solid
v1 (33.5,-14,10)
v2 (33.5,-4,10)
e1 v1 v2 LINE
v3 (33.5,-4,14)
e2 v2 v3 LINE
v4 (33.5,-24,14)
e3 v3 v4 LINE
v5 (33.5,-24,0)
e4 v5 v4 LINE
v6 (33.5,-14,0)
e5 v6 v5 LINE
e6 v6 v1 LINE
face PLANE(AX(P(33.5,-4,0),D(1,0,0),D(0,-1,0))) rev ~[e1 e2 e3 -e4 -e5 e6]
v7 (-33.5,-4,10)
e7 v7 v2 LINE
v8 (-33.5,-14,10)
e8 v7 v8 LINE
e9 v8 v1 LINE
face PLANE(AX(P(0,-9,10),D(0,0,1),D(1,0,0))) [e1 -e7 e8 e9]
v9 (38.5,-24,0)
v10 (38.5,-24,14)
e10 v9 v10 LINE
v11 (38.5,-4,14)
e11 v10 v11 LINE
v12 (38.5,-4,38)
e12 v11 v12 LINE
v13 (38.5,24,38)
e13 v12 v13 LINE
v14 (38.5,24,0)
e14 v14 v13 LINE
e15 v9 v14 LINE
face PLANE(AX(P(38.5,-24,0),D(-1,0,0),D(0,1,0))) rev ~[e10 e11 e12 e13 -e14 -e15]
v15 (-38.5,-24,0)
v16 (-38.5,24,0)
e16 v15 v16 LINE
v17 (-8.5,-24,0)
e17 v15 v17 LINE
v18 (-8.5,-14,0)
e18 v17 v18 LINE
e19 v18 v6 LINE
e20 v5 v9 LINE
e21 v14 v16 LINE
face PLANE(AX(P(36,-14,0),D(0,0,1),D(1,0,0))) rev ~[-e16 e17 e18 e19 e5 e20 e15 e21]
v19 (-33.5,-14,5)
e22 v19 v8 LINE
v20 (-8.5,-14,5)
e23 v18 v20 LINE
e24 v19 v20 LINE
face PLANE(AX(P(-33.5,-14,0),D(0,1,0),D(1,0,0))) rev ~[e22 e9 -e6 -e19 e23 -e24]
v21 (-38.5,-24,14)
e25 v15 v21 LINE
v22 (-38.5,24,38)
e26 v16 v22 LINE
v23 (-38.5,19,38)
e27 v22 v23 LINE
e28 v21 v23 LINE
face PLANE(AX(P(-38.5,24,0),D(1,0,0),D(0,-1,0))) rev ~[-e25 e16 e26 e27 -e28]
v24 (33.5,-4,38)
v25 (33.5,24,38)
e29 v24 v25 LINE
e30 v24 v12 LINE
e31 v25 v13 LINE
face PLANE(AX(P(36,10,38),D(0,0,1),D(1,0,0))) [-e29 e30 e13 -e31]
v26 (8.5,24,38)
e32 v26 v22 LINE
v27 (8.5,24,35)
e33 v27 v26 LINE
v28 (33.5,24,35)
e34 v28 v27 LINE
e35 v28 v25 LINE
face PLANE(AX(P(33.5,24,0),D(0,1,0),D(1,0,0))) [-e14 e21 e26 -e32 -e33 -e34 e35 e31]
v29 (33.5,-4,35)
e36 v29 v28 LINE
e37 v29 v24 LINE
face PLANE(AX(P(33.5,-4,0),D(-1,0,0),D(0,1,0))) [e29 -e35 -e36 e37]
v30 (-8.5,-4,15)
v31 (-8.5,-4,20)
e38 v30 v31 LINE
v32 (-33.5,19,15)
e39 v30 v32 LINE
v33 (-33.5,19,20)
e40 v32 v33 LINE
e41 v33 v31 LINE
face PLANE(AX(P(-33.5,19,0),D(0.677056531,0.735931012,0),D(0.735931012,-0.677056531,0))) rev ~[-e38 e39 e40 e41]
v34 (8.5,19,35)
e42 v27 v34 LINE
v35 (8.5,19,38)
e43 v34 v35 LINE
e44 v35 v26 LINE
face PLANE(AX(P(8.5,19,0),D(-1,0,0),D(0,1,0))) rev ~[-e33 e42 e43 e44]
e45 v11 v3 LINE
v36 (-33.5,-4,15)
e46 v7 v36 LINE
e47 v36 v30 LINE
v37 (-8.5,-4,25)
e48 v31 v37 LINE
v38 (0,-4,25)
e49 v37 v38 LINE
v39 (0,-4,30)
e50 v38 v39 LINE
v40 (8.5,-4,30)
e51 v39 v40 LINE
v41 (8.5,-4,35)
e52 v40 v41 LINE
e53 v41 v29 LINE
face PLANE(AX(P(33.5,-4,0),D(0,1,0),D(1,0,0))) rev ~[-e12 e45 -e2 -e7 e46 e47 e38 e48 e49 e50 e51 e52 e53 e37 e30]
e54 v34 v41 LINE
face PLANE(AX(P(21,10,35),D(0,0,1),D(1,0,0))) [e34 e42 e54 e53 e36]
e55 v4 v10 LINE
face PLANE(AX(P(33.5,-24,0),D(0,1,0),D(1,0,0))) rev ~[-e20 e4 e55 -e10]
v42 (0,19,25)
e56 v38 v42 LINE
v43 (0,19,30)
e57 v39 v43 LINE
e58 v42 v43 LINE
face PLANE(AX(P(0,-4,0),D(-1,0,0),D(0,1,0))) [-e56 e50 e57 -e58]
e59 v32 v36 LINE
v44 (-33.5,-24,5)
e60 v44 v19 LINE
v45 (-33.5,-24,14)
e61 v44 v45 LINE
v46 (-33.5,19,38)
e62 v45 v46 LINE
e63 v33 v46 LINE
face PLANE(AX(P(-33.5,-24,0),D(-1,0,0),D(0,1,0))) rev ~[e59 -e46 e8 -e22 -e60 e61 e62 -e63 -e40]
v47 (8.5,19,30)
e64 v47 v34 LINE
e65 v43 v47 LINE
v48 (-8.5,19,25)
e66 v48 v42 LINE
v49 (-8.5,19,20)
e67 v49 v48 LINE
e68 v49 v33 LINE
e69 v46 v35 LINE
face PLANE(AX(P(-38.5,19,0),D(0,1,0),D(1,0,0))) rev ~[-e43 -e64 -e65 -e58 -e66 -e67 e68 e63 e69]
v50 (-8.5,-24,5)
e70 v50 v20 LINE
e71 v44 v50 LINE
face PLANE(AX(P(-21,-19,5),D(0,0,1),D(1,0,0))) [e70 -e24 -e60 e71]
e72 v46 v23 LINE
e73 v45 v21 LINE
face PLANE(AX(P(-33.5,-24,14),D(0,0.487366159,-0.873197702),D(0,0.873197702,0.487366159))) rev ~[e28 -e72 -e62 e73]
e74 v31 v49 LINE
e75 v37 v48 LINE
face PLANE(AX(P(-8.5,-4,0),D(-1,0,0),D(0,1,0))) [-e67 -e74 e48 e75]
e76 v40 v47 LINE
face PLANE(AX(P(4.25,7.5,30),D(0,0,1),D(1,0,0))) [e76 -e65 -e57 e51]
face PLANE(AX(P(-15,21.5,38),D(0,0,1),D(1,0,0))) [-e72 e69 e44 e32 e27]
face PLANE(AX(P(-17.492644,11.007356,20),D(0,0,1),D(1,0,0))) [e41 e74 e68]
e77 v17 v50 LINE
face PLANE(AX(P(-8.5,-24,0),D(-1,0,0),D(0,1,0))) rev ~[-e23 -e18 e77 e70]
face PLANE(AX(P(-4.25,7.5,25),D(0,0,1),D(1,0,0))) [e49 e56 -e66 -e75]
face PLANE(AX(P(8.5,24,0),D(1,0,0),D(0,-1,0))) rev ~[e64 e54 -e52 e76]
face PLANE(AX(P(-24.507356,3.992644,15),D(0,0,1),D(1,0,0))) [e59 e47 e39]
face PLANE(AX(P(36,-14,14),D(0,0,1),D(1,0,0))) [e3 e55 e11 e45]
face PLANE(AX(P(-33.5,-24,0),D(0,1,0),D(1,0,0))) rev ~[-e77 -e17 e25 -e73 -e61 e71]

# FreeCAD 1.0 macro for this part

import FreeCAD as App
import Part
import Sketcher

V = App.Vector
Q = App.Units.Quantity

doc = App.newDocument("Part")
body = doc.addObject("PartDesign::Body", "Body")

# Sketch on XY plane
sketch1 = body.newObject("Sketcher::SketchObject", "Sketch")
sketch1.AttachmentSupport = (doc.getObject("XY_Plane"), [""])
sketch1.MapMode = "FlatFace"
sketch1.addGeometry([
    Part.LineSegment(V(-34, 19, 0), V(-38, 19, 0)),
    Part.LineSegment(V(-38, 19, 0), V(-38, -24, 0)),
    Part.LineSegment(V(-38, -24, 0), V(-34, -24, 0)),
    Part.LineSegment(V(-34, -24, 0), V(-34, 19, 0)),
], False)
sketch1.addConstraint([
    Sketcher.Constraint("Coincident", 0, 2, 1, 1),
    Sketcher.Constraint("Coincident", 1, 2, 2, 1),
    Sketcher.Constraint("Coincident", 2, 2, 3, 1),
    Sketcher.Constraint("Coincident", 3, 2, 0, 1),
    Sketcher.Constraint("Horizontal", 0),
    Sketcher.Constraint("Vertical", 1),
    Sketcher.Constraint("Horizontal", 2),
    Sketcher.Constraint("Vertical", 3),
    Sketcher.Constraint("DistanceX", 0, 2, 0, 1, Q("5 mm")),
    Sketcher.Constraint("DistanceY", 1, 2, 1, 1, Q("43 mm")),
    Sketcher.Constraint("DistanceY", -1, 1, 0, 2, Q("19 mm")),
    Sketcher.Constraint("DistanceX", 0, 2, -1, 1, Q("38.5 mm")),
])
pad1 = body.newObject("PartDesign::Pad", "Pad")
pad1.Profile = sketch1
pad1.Length = 38

# Sketch on YZ plane
sketch2 = body.newObject("Sketcher::SketchObject", "Sketch001")
sketch2.AttachmentSupport = (doc.getObject("YZ_Plane"), [""])
sketch2.MapMode = "FlatFace"
sketch2.AttachmentOffset = App.Placement(V(0, 0, -33.5), App.Rotation())
sketch2.addGeometry([
    Part.LineSegment(V(-24, 38, 0), V(-24, 14, 0)),
    Part.LineSegment(V(-24, 14, 0), V(19, 38, 0)),
    Part.LineSegment(V(19, 38, 0), V(-24, 38, 0)),
], False)
sketch2.addConstraint([
    Sketcher.Constraint("Coincident", 0, 2, 1, 1),
    Sketcher.Constraint("Coincident", 1, 2, 2, 1),
    Sketcher.Constraint("Coincident", 2, 2, 0, 1),
    Sketcher.Constraint("Vertical", 0),
    Sketcher.Constraint("Horizontal", 2),
    Sketcher.Constraint("DistanceX", 2, 2, 2, 1, Q("43 mm")),
    Sketcher.Constraint("DistanceY", 0, 2, 0, 1, Q("24 mm")),
    Sketcher.Constraint("DistanceX", 0, 2, -1, 1, Q("24 mm")),
    Sketcher.Constraint("DistanceY", -1, 1, 0, 2, Q("14 mm")),
])
pocket1 = body.newObject("PartDesign::Pocket", "Pocket")
pocket1.Profile = sketch2
pocket1.Length = 25

# Sketch on XY plane
sketch3 = body.newObject("Sketcher::SketchObject", "Sketch002")
sketch3.AttachmentSupport = (doc.getObject("XY_Plane"), [""])
sketch3.MapMode = "FlatFace"
sketch3.addGeometry([
    Part.LineSegment(V(8, 19, 0), V(8, 24, 0)),
    Part.LineSegment(V(8, 24, 0), V(-38, 24, 0)),
    Part.LineSegment(V(-38, 24, 0), V(-38, 19, 0)),
    Part.LineSegment(V(-38, 19, 0), V(8, 19, 0)),
], False)
sketch3.addConstraint([
    Sketcher.Constraint("Coincident", 0, 2, 1, 1),
    Sketcher.Constraint("Coincident", 1, 2, 2, 1),
    Sketcher.Constraint("Coincident", 2, 2, 3, 1),
    Sketcher.Constraint("Coincident", 3, 2, 0, 1),
    Sketcher.Constraint("Vertical", 0),
    Sketcher.Constraint("Horizontal", 1),
    Sketcher.Constraint("Vertical", 2),
    Sketcher.Constraint("Horizontal", 3),
    Sketcher.Constraint("DistanceX", 1, 2, 1, 1, Q("47 mm")),
    Sketcher.Constraint("DistanceY", 0, 1, 0, 2, Q("5 mm")),
    Sketcher.Constraint("DistanceY", -1, 1, 0, 2, Q("24 mm")),
    Sketcher.Constraint("DistanceX", -1, 1, 0, 2, Q("8.5 mm")),
])
pad2 = body.newObject("PartDesign::Pad", "Pad001")
pad2.Profile = sketch3
pad2.Length = 38

# Sketch on XY plane
sketch4 = body.newObject("Sketcher::SketchObject", "Sketch003")
sketch4.AttachmentSupport = (doc.getObject("XY_Plane"), [""])
sketch4.MapMode = "FlatFace"
sketch4.addGeometry([
    Part.LineSegment(V(-34, -14, 0), V(-34, -24, 0)),
    Part.LineSegment(V(-34, -24, 0), V(-8, -24, 0)),
    Part.LineSegment(V(-8, -24, 0), V(-8, -14, 0)),
    Part.LineSegment(V(-8, -14, 0), V(-34, -14, 0)),
], False)
sketch4.addConstraint([
    Sketcher.Constraint("Coincident", 0, 2, 1, 1),
    Sketcher.Constraint("Coincident", 1, 2, 2, 1),
    Sketcher.Constraint("Coincident", 2, 2, 3, 1),
    Sketcher.Constraint("Coincident", 3, 2, 0, 1),
    Sketcher.Constraint("Vertical", 0),
    Sketcher.Constraint("Horizontal", 1),
    Sketcher.Constraint("Vertical", 2),
    Sketcher.Constraint("Horizontal", 3),
    Sketcher.Constraint("DistanceX", 1, 1, 1, 2, Q("25 mm")),
    Sketcher.Constraint("DistanceY", 0, 2, 0, 1, Q("10 mm")),
    Sketcher.Constraint("DistanceY", 0, 2, -1, 1, Q("24 mm")),
    Sketcher.Constraint("DistanceX", 0, 2, -1, 1, Q("33.5 mm")),
])
pad3 = body.newObject("PartDesign::Pad", "Pad002")
pad3.Profile = sketch4
pad3.Length = 5

# Sketch on XY plane
sketch5 = body.newObject("Sketcher::SketchObject", "Sketch004")
sketch5.AttachmentSupport = (doc.getObject("XY_Plane"), [""])
sketch5.MapMode = "FlatFace"
sketch5.addGeometry([
    Part.LineSegment(V(34, -14, 0), V(34, -4, 0)),
    Part.LineSegment(V(34, -4, 0), V(-34, -4, 0)),
    Part.LineSegment(V(-34, -4, 0), V(-34, -14, 0)),
    Part.LineSegment(V(-34, -14, 0), V(34, -14, 0)),
], False)
sketch5.addConstraint([
    Sketcher.Constraint("Coincident", 0, 2, 1, 1),
    Sketcher.Constraint("Coincident", 1, 2, 2, 1),
    Sketcher.Constraint("Coincident", 2, 2, 3, 1),
    Sketcher.Constraint("Coincident", 3, 2, 0, 1),
    Sketcher.Constraint("Vertical", 0),
    Sketcher.Constraint("Horizontal", 1),
    Sketcher.Constraint("Vertical", 2),
    Sketcher.Constraint("Horizontal", 3),
    Sketcher.Constraint("DistanceX", 1, 2, 1, 1, Q("67 mm")),
    Sketcher.Constraint("DistanceY", 0, 1, 0, 2, Q("10 mm")),
    Sketcher.Constraint("DistanceY", 0, 2, -1, 1, Q("4 mm")),
    Sketcher.Constraint("DistanceX", -1, 1, 0, 2, Q("33.5 mm")),
])
pad4 = body.newObject("PartDesign::Pad", "Pad003")
pad4.Profile = sketch5
pad4.Length = 10

# Sketch on XY plane
sketch6 = body.newObject("Sketcher::SketchObject", "Sketch005")
sketch6.AttachmentSupport = (doc.getObject("XY_Plane"), [""])
sketch6.MapMode = "FlatFace"
sketch6.addGeometry([
    Part.LineSegment(V(-8, 19, 0), V(-8, -4, 0)),
    Part.LineSegment(V(-8, -4, 0), V(0, -4, 0)),
    Part.LineSegment(V(0, -4, 0), V(0, 19, 0)),
    Part.LineSegment(V(0, 19, 0), V(-8, 19, 0)),
], False)
sketch6.addConstraint([
    Sketcher.Constraint("Coincident", 0, 2, 1, 1),
    Sketcher.Constraint("Coincident", 1, 2, 2, 1),
    Sketcher.Constraint("Coincident", 2, 2, 3, 1),
    Sketcher.Constraint("Coincident", 3, 2, 0, 1),
    Sketcher.Constraint("Vertical", 0),
    Sketcher.Constraint("Horizontal", 1),
    Sketcher.Constraint("Vertical", 2),
    Sketcher.Constraint("Horizontal", 3),
    Sketcher.Constraint("PointOnObject", 1, 2, -2),
    Sketcher.Constraint("DistanceY", 0, 2, 0, 1, Q("23 mm")),
    Sketcher.Constraint("DistanceX", 1, 1, 1, 2, Q("8.5 mm")),
    Sketcher.Constraint("DistanceY", 0, 2, -1, 1, Q("4 mm")),
])
pad5 = body.newObject("PartDesign::Pad", "Pad004")
pad5.Profile = sketch6
pad5.Length = 25

# Sketch on XY plane
sketch7 = body.newObject("Sketcher::SketchObject", "Sketch006")
sketch7.AttachmentSupport = (doc.getObject("XY_Plane"), [""])
sketch7.MapMode = "FlatFace"
sketch7.addGeometry([
    Part.LineSegment(V(0, 19, 0), V(0, -4, 0)),
    Part.LineSegment(V(0, -4, 0), V(8, -4, 0)),
    Part.LineSegment(V(8, -4, 0), V(8, 19, 0)),
    Part.LineSegment(V(8, 19, 0), V(0, 19, 0)),
], False)
sketch7.addConstraint([
    Sketcher.Constraint("Coincident", 0, 2, 1, 1),
    Sketcher.Constraint("Coincident", 1, 2, 2, 1),
    Sketcher.Constraint("Coincident", 2, 2, 3, 1),
    Sketcher.Constraint("Coincident", 3, 2, 0, 1),
    Sketcher.Constraint("Vertical", 0),
    Sketcher.Constraint("Horizontal", 1),
    Sketcher.Constraint("Vertical", 2),
    Sketcher.Constraint("Horizontal", 3),
    Sketcher.Constraint("PointOnObject", 0, 2, -2),
    Sketcher.Constraint("DistanceY", 0, 2, 0, 1, Q("23 mm")),
    Sketcher.Constraint("DistanceX", 1, 1, 1, 2, Q("8.5 mm")),
    Sketcher.Constraint("DistanceY", 0, 2, -1, 1, Q("4 mm")),
])
pad6 = body.newObject("PartDesign::Pad", "Pad005")
pad6.Profile = sketch7
pad6.Length = 30

# Sketch on XY plane
sketch8 = body.newObject("Sketcher::SketchObject", "Sketch007")
sketch8.AttachmentSupport = (doc.getObject("XY_Plane"), [""])
sketch8.MapMode = "FlatFace"
sketch8.addGeometry([
    Part.LineSegment(V(-8, 19, 0), V(-34, 19, 0)),
    Part.LineSegment(V(-34, 19, 0), V(-8, -4, 0)),
    Part.LineSegment(V(-8, -4, 0), V(-8, 19, 0)),
], False)
sketch8.addConstraint([
    Sketcher.Constraint("Coincident", 0, 2, 1, 1),
    Sketcher.Constraint("Coincident", 1, 2, 2, 1),
    Sketcher.Constraint("Coincident", 2, 2, 0, 1),
    Sketcher.Constraint("Horizontal", 0),
    Sketcher.Constraint("Vertical", 2),
    Sketcher.Constraint("DistanceX", 0, 2, 0, 1, Q("25 mm")),
    Sketcher.Constraint("DistanceY", 2, 1, 2, 2, Q("23 mm")),
    Sketcher.Constraint("DistanceY", -1, 1, 0, 2, Q("19 mm")),
    Sketcher.Constraint("DistanceX", 0, 2, -1, 1, Q("33.5 mm")),
])
pad7 = body.newObject("PartDesign::Pad", "Pad006")
pad7.Profile = sketch8
pad7.Length = 20

# Sketch on XY plane
sketch9 = body.newObject("Sketcher::SketchObject", "Sketch008")
sketch9.AttachmentSupport = (doc.getObject("XY_Plane"), [""])
sketch9.MapMode = "FlatFace"
sketch9.addGeometry([
    Part.LineSegment(V(-8, -4, 0), V(-34, 19, 0)),
    Part.LineSegment(V(-34, 19, 0), V(-34, -4, 0)),
    Part.LineSegment(V(-34, -4, 0), V(-8, -4, 0)),
], False)
sketch9.addConstraint([
    Sketcher.Constraint("Coincident", 0, 2, 1, 1),
    Sketcher.Constraint("Coincident", 1, 2, 2, 1),
    Sketcher.Constraint("Coincident", 2, 2, 0, 1),
    Sketcher.Constraint("Vertical", 1),
    Sketcher.Constraint("Horizontal", 2),
    Sketcher.Constraint("DistanceX", 2, 1, 2, 2, Q("25 mm")),
    Sketcher.Constraint("DistanceY", 1, 2, 1, 1, Q("23 mm")),
    Sketcher.Constraint("DistanceY", -1, 1, 0, 2, Q("19 mm")),
    Sketcher.Constraint("DistanceX", 0, 2, -1, 1, Q("33.5 mm")),
])
pad8 = body.newObject("PartDesign::Pad", "Pad007")
pad8.Profile = sketch9
pad8.Length = 15

# Sketch on XY plane
sketch10 = body.newObject("Sketcher::SketchObject", "Sketch009")
sketch10.AttachmentSupport = (doc.getObject("XY_Plane"), [""])
sketch10.MapMode = "FlatFace"
sketch10.addGeometry([
    Part.LineSegment(V(34, -4, 0), V(34, 24, 0)),
    Part.LineSegment(V(34, 24, 0), V(8, 24, 0)),
    Part.LineSegment(V(8, 24, 0), V(8, -4, 0)),
    Part.LineSegment(V(8, -4, 0), V(34, -4, 0)),
], False)
sketch10.addConstraint([
    Sketcher.Constraint("Coincident", 0, 2, 1, 1),
    Sketcher.Constraint("Coincident", 1, 2, 2, 1),
    Sketcher.Constraint("Coincident", 2, 2, 3, 1),
    Sketcher.Constraint("Coincident", 3, 2, 0, 1),
    Sketcher.Constraint("Vertical", 0),
    Sketcher.Constraint("Horizontal", 1),
    Sketcher.Constraint("Vertical", 2),
    Sketcher.Constraint("Horizontal", 3),
    Sketcher.Constraint("DistanceX", 1, 2, 1, 1, Q("25 mm")),
    Sketcher.Constraint("DistanceY", 0, 1, 0, 2, Q("28 mm")),
    Sketcher.Constraint("DistanceY", -1, 1, 0, 2, Q("24 mm")),
    Sketcher.Constraint("DistanceX", -1, 1, 0, 2, Q("33.5 mm")),
])
pad9 = body.newObject("PartDesign::Pad", "Pad008")
pad9.Profile = sketch10
pad9.Length = 35

# Sketch on XY plane
sketch11 = body.newObject("Sketcher::SketchObject", "Sketch010")
sketch11.AttachmentSupport = (doc.getObject("XY_Plane"), [""])
sketch11.MapMode = "FlatFace"
sketch11.addGeometry([
    Part.LineSegment(V(34, 24, 0), V(34, -4, 0)),
    Part.LineSegment(V(34, -4, 0), V(38, -4, 0)),
    Part.LineSegment(V(38, -4, 0), V(38, 24, 0)),
    Part.LineSegment(V(38, 24, 0), V(34, 24, 0)),
], False)
sketch11.addConstraint([
    Sketcher.Constraint("Coincident", 0, 2, 1, 1),
    Sketcher.Constraint("Coincident", 1, 2, 2, 1),
    Sketcher.Constraint("Coincident", 2, 2, 3, 1),
    Sketcher.Constraint("Coincident", 3, 2, 0, 1),
    Sketcher.Constraint("Vertical", 0),
    Sketcher.Constraint("Horizontal", 1),
    Sketcher.Constraint("Vertical", 2),
    Sketcher.Constraint("Horizontal", 3),
    Sketcher.Constraint("DistanceX", 1, 1, 1, 2, Q("5 mm")),
    Sketcher.Constraint("DistanceY", 0, 2, 0, 1, Q("28 mm")),
    Sketcher.Constraint("DistanceY", 0, 2, -1, 1, Q("4 mm")),
    Sketcher.Constraint("DistanceX", -1, 1, 0, 2, Q("33.5 mm")),
])
pad10 = body.newObject("PartDesign::Pad", "Pad009")
pad10.Profile = sketch11
pad10.Length = 38

# Sketch on XY plane
sketch12 = body.newObject("Sketcher::SketchObject", "Sketch011")
sketch12.AttachmentSupport = (doc.getObject("XY_Plane"), [""])
sketch12.MapMode = "FlatFace"
sketch12.addGeometry([
    Part.LineSegment(V(38, -24, 0), V(38, -4, 0)),
    Part.LineSegment(V(38, -4, 0), V(34, -4, 0)),
    Part.LineSegment(V(34, -4, 0), V(34, -24, 0)),
    Part.LineSegment(V(34, -24, 0), V(38, -24, 0)),
], False)
sketch12.addConstraint([
    Sketcher.Constraint("Coincident", 0, 2, 1, 1),
    Sketcher.Constraint("Coincident", 1, 2, 2, 1),
    Sketcher.Constraint("Coincident", 2, 2, 3, 1),
    Sketcher.Constraint("Coincident", 3, 2, 0, 1),
    Sketcher.Constraint("Vertical", 0),
    Sketcher.Constraint("Horizontal", 1),
    Sketcher.Constraint("Vertical", 2),
    Sketcher.Constraint("Horizontal", 3),
    Sketcher.Constraint("DistanceX", 1, 2, 1, 1, Q("5 mm")),
    Sketcher.Constraint("DistanceY", 0, 1, 0, 2, Q("20 mm")),
    Sketcher.Constraint("DistanceY", 0, 2, -1, 1, Q("4 mm")),
    Sketcher.Constraint("DistanceX", -1, 1, 0, 2, Q("38.5 mm")),
])
pad11 = body.newObject("PartDesign::Pad", "Pad010")
pad11.Profile = sketch12
pad11.Length = 14

doc.recompute()
